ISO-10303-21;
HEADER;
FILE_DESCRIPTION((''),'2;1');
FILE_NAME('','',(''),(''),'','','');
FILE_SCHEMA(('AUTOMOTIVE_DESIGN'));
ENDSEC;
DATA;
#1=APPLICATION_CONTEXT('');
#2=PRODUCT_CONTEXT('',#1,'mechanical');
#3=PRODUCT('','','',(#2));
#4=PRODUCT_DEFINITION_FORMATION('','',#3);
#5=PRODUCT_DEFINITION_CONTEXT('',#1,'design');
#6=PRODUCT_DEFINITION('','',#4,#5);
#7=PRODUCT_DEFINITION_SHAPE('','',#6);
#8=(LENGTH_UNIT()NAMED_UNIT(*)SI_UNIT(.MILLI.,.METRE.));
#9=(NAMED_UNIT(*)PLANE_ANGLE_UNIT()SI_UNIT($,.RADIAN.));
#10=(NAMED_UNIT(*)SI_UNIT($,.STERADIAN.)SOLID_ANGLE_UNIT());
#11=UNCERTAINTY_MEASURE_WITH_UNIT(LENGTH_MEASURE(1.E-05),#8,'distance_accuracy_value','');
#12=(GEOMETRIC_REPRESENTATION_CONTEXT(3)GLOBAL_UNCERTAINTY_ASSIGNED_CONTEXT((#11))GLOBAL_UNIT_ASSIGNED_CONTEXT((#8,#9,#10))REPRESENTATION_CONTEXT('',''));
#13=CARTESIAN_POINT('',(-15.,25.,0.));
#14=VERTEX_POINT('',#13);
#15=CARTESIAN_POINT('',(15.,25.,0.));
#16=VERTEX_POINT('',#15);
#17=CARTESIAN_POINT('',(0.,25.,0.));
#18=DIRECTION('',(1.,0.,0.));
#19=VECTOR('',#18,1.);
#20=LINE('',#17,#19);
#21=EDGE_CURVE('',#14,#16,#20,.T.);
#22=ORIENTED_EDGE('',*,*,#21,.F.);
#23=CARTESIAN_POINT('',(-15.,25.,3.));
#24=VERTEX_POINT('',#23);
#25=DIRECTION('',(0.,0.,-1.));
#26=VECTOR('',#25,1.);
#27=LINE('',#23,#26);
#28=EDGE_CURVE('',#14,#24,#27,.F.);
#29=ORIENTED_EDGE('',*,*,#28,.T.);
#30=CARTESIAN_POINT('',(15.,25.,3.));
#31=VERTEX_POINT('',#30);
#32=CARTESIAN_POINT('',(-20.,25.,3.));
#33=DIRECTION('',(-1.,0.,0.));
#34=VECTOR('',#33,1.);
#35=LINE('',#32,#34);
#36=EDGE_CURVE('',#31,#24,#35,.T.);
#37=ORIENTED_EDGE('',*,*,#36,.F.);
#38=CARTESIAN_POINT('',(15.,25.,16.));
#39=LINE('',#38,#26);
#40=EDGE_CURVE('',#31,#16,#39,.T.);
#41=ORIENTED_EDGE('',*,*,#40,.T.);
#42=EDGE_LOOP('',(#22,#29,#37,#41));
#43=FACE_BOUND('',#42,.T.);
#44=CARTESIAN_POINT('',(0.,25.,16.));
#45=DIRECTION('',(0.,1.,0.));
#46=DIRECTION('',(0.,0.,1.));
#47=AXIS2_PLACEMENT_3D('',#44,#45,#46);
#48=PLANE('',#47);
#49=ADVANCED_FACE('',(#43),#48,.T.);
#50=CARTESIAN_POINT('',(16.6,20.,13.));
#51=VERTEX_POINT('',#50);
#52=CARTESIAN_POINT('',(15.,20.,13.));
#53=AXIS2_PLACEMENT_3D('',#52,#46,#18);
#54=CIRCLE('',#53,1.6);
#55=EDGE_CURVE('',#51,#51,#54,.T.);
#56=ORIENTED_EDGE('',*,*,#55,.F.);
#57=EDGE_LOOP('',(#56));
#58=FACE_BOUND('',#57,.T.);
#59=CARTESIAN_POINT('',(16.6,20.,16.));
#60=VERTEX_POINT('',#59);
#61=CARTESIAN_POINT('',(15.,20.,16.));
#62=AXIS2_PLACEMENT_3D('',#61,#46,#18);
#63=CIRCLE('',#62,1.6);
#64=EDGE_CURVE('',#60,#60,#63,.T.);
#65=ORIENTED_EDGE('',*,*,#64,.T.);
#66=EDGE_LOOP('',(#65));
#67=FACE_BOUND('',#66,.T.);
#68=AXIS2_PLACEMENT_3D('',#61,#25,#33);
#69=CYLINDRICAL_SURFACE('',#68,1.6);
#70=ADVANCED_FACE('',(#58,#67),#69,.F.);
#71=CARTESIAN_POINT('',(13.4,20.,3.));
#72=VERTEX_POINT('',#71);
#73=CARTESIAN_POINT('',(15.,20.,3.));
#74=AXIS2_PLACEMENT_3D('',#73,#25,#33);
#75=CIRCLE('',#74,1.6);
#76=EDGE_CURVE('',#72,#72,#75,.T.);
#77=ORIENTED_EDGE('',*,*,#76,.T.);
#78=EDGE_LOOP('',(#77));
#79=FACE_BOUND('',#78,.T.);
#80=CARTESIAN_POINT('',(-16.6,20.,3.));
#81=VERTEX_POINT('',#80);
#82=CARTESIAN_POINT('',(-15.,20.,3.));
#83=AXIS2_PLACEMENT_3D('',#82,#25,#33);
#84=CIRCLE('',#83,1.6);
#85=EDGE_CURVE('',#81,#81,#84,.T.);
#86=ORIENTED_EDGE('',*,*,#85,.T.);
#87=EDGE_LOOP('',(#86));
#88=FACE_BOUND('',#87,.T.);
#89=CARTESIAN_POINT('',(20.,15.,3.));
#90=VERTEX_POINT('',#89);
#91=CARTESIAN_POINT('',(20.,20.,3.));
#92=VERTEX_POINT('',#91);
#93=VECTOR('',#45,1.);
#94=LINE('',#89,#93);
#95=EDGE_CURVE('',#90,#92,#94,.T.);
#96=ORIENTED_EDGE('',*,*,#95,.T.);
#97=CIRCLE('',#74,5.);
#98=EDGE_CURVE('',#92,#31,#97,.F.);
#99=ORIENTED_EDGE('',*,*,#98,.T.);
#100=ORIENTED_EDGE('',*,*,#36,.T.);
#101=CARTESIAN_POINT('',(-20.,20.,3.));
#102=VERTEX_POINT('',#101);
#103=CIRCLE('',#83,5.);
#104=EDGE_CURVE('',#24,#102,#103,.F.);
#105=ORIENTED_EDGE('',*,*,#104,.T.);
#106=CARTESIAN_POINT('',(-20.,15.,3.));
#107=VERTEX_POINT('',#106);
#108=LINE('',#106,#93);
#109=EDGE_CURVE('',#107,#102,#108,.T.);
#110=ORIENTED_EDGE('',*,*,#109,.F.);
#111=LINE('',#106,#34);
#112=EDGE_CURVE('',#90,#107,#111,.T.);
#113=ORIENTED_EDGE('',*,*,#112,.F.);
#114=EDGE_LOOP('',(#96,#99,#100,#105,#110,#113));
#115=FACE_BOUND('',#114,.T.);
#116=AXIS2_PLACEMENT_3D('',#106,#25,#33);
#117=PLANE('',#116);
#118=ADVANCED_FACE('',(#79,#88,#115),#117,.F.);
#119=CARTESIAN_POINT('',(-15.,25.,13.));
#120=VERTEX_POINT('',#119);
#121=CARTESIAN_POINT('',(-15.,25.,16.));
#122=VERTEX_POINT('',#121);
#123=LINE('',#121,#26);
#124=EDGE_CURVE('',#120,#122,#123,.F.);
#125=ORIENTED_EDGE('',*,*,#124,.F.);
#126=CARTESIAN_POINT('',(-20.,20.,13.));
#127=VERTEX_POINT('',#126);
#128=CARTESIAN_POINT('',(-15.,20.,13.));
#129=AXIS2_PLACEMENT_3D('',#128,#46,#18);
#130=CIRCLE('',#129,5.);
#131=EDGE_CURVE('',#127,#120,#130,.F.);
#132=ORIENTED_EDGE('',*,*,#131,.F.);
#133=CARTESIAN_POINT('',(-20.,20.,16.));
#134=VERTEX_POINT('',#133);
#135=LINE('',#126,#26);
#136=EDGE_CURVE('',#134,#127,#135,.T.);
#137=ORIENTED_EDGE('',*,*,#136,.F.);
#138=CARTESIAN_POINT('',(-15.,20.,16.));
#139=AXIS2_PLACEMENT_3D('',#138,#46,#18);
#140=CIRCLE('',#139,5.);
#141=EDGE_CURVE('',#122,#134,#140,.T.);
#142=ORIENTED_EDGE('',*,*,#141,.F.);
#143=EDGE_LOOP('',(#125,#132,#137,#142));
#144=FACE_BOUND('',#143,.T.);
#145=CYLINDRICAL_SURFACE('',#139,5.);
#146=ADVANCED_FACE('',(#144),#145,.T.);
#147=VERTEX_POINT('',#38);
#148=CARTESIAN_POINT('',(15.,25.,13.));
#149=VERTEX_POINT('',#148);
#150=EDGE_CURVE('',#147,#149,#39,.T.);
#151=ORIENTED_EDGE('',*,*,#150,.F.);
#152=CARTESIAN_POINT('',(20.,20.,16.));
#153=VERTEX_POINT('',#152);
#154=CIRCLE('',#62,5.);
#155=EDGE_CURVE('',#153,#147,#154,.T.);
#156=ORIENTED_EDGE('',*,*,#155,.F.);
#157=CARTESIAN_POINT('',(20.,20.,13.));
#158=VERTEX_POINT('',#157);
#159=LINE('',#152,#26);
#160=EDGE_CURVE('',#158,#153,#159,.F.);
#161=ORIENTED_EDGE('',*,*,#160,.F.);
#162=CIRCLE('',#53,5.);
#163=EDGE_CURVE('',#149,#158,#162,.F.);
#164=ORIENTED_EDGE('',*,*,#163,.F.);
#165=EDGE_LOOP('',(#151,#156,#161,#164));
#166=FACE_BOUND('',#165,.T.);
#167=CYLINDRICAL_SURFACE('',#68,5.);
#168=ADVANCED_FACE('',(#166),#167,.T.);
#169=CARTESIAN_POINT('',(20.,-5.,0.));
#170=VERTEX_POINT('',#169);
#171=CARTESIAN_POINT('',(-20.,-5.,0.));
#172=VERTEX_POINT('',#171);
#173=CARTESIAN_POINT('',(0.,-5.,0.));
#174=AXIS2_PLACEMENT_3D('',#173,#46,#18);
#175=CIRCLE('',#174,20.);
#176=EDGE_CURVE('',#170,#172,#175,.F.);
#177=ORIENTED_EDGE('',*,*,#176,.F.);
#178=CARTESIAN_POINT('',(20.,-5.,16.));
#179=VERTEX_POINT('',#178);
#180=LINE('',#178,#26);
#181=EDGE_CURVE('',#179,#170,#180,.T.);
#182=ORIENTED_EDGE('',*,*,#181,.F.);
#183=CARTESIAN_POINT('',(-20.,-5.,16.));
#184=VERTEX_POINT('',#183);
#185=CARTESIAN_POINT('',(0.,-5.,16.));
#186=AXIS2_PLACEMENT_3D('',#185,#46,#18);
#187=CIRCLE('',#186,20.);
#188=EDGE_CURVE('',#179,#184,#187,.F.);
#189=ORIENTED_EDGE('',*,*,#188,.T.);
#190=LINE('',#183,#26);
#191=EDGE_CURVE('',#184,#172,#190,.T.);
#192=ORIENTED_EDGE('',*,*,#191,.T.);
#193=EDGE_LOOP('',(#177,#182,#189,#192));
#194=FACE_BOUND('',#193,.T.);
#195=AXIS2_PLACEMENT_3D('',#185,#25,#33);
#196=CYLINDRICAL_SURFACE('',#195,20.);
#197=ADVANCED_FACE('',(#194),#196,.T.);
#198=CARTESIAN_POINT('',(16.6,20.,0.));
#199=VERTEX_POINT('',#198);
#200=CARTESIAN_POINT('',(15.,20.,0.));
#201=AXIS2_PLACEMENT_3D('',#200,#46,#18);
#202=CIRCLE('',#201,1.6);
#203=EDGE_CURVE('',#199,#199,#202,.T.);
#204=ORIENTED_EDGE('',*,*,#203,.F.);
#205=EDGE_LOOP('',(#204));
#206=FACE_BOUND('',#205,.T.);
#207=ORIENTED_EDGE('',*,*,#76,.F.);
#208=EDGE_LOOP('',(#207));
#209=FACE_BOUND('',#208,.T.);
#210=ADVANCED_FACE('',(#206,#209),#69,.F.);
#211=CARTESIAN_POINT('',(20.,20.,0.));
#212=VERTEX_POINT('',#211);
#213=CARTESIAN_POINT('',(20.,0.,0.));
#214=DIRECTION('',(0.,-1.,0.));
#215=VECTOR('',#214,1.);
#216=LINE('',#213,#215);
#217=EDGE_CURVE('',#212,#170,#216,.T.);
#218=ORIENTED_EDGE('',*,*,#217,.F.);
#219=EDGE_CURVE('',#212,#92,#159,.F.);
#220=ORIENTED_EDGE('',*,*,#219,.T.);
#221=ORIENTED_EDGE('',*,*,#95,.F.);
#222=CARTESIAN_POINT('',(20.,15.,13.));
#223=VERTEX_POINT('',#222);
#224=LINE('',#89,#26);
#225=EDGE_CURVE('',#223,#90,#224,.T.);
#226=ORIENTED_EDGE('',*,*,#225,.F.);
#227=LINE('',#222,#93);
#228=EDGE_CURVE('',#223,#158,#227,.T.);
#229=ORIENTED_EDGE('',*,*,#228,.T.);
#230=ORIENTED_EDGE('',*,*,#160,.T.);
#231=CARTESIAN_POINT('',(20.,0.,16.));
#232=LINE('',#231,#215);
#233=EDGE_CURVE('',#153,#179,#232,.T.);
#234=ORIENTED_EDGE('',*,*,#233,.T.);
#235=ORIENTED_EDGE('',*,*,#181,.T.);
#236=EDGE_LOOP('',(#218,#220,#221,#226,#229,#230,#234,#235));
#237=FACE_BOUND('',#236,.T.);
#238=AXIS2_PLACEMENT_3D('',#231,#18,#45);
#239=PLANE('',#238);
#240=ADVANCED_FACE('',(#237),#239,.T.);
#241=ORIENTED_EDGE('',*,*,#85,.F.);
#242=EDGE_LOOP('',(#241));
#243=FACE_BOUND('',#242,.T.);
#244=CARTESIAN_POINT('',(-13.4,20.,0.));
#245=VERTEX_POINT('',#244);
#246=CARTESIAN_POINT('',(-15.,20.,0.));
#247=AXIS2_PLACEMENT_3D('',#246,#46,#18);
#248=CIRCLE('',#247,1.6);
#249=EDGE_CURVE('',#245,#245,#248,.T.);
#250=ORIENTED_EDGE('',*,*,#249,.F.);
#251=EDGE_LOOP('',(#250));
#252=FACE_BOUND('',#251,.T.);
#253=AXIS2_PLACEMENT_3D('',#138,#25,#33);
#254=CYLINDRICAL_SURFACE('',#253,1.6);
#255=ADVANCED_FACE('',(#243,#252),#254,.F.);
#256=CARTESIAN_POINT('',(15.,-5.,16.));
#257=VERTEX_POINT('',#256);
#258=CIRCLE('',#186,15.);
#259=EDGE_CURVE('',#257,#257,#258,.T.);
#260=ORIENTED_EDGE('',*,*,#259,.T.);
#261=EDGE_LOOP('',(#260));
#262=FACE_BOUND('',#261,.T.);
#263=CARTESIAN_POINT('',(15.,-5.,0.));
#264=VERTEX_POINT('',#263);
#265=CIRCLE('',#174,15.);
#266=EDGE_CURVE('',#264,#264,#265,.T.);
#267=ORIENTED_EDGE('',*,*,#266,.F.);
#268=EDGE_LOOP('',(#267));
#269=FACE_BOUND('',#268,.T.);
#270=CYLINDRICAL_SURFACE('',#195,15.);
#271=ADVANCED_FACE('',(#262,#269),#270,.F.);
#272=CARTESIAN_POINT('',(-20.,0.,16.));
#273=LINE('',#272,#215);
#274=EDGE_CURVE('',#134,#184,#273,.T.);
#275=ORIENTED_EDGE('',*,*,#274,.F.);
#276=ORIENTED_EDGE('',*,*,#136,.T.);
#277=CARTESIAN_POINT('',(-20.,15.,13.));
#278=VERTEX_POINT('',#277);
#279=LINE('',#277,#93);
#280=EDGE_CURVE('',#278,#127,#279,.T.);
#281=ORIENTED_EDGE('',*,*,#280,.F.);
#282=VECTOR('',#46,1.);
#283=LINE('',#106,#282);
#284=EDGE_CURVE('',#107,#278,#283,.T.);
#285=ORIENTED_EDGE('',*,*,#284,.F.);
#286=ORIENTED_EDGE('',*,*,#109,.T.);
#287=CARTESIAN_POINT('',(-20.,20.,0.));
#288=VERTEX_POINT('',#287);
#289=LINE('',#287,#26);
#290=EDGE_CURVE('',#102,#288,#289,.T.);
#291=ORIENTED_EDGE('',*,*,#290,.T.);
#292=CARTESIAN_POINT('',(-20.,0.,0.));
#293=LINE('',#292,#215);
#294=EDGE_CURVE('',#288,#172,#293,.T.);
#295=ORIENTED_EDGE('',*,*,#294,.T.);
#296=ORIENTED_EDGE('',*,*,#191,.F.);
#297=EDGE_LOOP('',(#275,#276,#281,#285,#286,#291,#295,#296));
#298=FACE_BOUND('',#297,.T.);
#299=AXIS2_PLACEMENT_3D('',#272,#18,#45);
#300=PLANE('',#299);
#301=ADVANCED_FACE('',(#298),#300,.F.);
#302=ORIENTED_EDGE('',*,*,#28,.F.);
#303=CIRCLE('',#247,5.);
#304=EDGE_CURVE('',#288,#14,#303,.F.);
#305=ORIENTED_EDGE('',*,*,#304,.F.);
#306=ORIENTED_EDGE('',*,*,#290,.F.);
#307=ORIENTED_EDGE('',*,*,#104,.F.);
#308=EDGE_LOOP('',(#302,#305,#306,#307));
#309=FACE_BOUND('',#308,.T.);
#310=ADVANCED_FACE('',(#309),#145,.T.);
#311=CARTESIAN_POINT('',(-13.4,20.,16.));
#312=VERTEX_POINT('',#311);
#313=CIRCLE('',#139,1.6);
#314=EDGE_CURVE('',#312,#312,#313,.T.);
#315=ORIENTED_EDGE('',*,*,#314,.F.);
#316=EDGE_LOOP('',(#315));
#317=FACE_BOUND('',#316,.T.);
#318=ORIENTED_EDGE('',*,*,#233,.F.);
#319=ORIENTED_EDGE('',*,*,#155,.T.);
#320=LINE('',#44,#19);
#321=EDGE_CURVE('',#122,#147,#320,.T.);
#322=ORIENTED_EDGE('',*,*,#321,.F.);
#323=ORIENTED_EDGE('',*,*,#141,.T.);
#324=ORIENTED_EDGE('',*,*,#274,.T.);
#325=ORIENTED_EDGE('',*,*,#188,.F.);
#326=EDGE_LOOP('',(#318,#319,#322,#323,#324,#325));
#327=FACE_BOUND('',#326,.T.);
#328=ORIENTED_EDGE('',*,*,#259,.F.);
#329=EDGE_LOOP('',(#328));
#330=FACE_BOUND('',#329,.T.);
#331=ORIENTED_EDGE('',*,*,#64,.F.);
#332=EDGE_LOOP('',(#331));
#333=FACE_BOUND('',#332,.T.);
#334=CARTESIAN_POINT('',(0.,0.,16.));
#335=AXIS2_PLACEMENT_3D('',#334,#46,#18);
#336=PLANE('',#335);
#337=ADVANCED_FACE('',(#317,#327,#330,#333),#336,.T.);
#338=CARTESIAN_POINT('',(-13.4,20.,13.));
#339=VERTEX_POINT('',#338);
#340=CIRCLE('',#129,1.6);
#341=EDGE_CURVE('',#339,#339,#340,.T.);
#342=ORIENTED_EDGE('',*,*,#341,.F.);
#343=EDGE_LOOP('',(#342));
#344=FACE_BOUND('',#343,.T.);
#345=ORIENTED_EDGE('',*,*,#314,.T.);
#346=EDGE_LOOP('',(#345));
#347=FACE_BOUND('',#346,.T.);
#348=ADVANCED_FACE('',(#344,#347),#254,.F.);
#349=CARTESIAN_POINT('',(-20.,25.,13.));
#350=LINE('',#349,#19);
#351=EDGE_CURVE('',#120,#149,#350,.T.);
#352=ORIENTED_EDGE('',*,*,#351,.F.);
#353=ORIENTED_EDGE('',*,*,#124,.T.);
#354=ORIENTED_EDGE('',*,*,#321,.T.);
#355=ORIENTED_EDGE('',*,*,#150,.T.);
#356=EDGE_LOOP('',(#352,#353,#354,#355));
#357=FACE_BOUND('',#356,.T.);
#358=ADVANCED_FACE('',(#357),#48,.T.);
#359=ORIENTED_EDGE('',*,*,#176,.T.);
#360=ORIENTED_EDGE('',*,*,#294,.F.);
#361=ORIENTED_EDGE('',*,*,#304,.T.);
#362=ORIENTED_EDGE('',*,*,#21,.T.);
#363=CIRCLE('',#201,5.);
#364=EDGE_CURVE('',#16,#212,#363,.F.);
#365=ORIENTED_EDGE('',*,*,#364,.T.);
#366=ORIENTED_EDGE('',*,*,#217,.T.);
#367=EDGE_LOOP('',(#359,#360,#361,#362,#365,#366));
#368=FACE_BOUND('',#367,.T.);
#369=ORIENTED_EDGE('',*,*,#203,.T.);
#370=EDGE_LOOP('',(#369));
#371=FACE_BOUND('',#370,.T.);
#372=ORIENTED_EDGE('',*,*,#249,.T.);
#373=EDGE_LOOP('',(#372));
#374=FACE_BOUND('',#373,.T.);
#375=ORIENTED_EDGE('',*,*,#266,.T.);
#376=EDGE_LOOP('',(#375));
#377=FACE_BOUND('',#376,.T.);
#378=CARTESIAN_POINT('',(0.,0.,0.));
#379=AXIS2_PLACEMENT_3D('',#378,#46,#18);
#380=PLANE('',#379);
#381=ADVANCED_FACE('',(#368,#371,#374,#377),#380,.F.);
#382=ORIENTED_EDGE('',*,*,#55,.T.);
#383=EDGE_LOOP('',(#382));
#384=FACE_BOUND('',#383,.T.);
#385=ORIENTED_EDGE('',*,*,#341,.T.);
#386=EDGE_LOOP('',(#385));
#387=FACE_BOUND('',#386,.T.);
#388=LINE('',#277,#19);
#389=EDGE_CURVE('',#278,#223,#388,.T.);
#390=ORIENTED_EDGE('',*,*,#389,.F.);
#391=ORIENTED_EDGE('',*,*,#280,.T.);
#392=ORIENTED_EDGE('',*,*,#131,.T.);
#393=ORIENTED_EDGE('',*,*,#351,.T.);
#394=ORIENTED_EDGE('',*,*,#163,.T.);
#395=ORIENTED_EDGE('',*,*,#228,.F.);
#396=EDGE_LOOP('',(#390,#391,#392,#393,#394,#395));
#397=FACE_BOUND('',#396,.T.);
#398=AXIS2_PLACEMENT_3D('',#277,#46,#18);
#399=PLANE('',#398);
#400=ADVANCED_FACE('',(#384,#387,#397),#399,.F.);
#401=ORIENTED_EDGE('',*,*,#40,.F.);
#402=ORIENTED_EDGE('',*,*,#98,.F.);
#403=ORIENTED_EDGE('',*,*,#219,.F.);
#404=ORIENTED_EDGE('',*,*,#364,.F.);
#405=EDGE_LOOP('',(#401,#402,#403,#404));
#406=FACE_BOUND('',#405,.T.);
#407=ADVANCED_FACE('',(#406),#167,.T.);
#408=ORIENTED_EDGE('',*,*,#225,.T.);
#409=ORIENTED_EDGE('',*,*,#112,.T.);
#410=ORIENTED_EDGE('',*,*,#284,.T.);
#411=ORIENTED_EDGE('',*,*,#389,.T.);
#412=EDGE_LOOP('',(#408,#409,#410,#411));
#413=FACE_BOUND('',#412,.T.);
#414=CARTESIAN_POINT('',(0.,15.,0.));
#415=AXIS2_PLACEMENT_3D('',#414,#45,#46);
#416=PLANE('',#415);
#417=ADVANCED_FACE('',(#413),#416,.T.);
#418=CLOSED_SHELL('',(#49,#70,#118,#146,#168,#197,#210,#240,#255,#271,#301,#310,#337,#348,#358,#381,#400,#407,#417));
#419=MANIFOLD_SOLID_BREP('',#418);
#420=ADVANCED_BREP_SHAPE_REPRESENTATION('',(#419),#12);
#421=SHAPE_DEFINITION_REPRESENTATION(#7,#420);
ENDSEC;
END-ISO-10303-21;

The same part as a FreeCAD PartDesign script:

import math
import FreeCAD as App
import Part
import Sketcher


def edges_at(feature, points):
    """Names of the edges that pass closest to the given points."""
    edges = feature.Shape.Edges
    near = lambda p: min(range(len(edges)), key=lambda i: edges[i].distToShape(Part.Vertex(*p))[0])
    return sorted({f"Edge{near(p) + 1}" for p in points})

doc = App.newDocument("Part")
body = doc.addObject("PartDesign::Body", "Body")

# Sketch on XY plane
sketch1 = body.newObject("Sketcher::SketchObject", "Sketch")
sketch1.AttachmentSupport = (doc.getObject("XY_Plane"), [""])
sketch1.MapMode = "FlatFace"
sketch1.addGeometry(Part.LineSegment(App.Vector(20, 25, 0), App.Vector(-20, 25, 0)), False)
sketch1.addGeometry(Part.LineSegment(App.Vector(-20, 25, 0), App.Vector(-20, -5, 0)), False)
sketch1.addGeometry(Part.ArcOfCircle(Part.Circle(App.Vector(0, -5, 0), App.Vector(0, 0, 1), 20), math.radians(180), math.radians(270)), False)
sketch1.addGeometry(Part.ArcOfCircle(Part.Circle(App.Vector(0, -5, 0), App.Vector(0, 0, 1), 20), math.radians(-90), math.radians(0)), False)
sketch1.addGeometry(Part.LineSegment(App.Vector(20, -5, 0), App.Vector(20, 25, 0)), False)
sketch1.addGeometry(Part.Circle(App.Vector(0, -5, 0), App.Vector(0, 0, 1), 15), False)
sketch1.addGeometry(Part.Circle(App.Vector(-15, 20, 0), App.Vector(0, 0, 1), 1.6), False)
sketch1.addGeometry(Part.Circle(App.Vector(15, 20, 0), App.Vector(0, 0, 1), 1.6), False)
sketch1.addConstraint(Sketcher.Constraint("Coincident", 0, 2, 1, 1))
sketch1.addConstraint(Sketcher.Constraint("Tangent", 1, 2, 2, 1))
sketch1.addConstraint(Sketcher.Constraint("Tangent", 2, 2, 3, 1))
sketch1.addConstraint(Sketcher.Constraint("Tangent", 3, 2, 4, 1))
sketch1.addConstraint(Sketcher.Constraint("Coincident", 4, 2, 0, 1))
sketch1.addConstraint(Sketcher.Constraint("Horizontal", 0))
sketch1.addConstraint(Sketcher.Constraint("Vertical", 1))
sketch1.addConstraint(Sketcher.Constraint("Vertical", 4))
sketch1.addConstraint(Sketcher.Constraint("Coincident", 5, 3, 2, 3))
sketch1.addConstraint(Sketcher.Constraint("Equal", 2, 3))
sketch1.addConstraint(Sketcher.Constraint("Equal", 6, 7))
sketch1.addConstraint(Sketcher.Constraint("Symmetric", 6, 3, 7, 3, -2))
sketch1.addConstraint(Sketcher.Constraint("PointOnObject", 2, 3, -2))
sketch1.addConstraint(Sketcher.Constraint("PointOnObject", 2, 2, -2))
sketch1.addConstraint(Sketcher.Constraint("Diameter", 5, 30.0))
sketch1.addConstraint(Sketcher.Constraint("Radius", 2, 20.0))
sketch1.addConstraint(Sketcher.Constraint("Diameter", 6, 3.2))
sketch1.addConstraint(Sketcher.Constraint("DistanceY", 1, 2, 1, 1, 30.0))
sketch1.addConstraint(Sketcher.Constraint("DistanceY", 2, 3, -1, 1, 5.0))
sketch1.addConstraint(Sketcher.Constraint("DistanceX", 6, 3, -1, 1, 15.0))
sketch1.addConstraint(Sketcher.Constraint("DistanceY", -1, 1, 6, 3, 20.0))
pad1 = body.newObject("PartDesign::Pad", "Pad")
pad1.Profile = sketch1
pad1.Length = 16

# Sketch on XZ plane
sketch2 = body.newObject("Sketcher::SketchObject", "Sketch001")
sketch2.AttachmentSupport = (doc.getObject("XZ_Plane"), [""])
sketch2.MapMode = "FlatFace"
sketch2.AttachmentOffset = App.Placement(App.Vector(0, 0, -25), App.Rotation())
sketch2.addGeometry(Part.LineSegment(App.Vector(-20, 3, 0), App.Vector(-20, 13, 0)), False)
sketch2.addGeometry(Part.LineSegment(App.Vector(-20, 13, 0), App.Vector(20, 13, 0)), False)
sketch2.addGeometry(Part.LineSegment(App.Vector(20, 13, 0), App.Vector(20, 3, 0)), False)
sketch2.addGeometry(Part.LineSegment(App.Vector(20, 3, 0), App.Vector(-20, 3, 0)), False)
sketch2.addConstraint(Sketcher.Constraint("Coincident", 0, 2, 1, 1))
sketch2.addConstraint(Sketcher.Constraint("Coincident", 1, 2, 2, 1))
sketch2.addConstraint(Sketcher.Constraint("Coincident", 2, 2, 3, 1))
sketch2.addConstraint(Sketcher.Constraint("Coincident", 3, 2, 0, 1))
sketch2.addConstraint(Sketcher.Constraint("Vertical", 0))
sketch2.addConstraint(Sketcher.Constraint("Horizontal", 1))
sketch2.addConstraint(Sketcher.Constraint("Vertical", 2))
sketch2.addConstraint(Sketcher.Constraint("Horizontal", 3))
sketch2.addConstraint(Sketcher.Constraint("DistanceX", 1, 1, 1, 2, 40.0))
sketch2.addConstraint(Sketcher.Constraint("DistanceY", 0, 1, 0, 2, 10.0))
sketch2.addConstraint(Sketcher.Constraint("DistanceX", 0, 2, -1, 1, 20.0))
sketch2.addConstraint(Sketcher.Constraint("DistanceY", -1, 1, 0, 2, 13.0))
pocket1 = body.newObject("PartDesign::Pocket", "Pocket")
pocket1.Profile = sketch2
pocket1.Length = 10
pocket1.Reversed = True
doc.recompute()

fillet = body.newObject("PartDesign::Fillet", "Fillet")
fillet.Base = (pocket1, edges_at(pocket1, [
    (-20, 25, 14.5),
    (20, 25, 14.5),
    (-20, 25, 1.5),
    (20, 25, 1.5),
]))
fillet.Radius = 5

doc.recompute()
